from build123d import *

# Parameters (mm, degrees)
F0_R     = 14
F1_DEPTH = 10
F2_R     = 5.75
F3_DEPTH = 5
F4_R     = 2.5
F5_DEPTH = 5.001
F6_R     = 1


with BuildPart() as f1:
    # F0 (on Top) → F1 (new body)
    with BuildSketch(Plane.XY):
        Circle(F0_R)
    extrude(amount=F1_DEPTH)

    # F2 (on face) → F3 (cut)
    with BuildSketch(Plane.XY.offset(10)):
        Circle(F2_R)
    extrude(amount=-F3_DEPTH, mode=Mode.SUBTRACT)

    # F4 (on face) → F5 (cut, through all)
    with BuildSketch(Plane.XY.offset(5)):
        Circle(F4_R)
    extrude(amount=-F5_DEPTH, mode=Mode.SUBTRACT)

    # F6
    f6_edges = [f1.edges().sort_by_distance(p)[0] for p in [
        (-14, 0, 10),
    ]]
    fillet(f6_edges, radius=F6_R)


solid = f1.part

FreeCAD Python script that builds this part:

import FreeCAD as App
import Part
import Sketcher
from FreeCAD import Vector


def edges_at(feature, points):
    """Names of the edges that pass closest to the given points."""
    edges = feature.Shape.Edges
    near = lambda p: min(range(len(edges)), key=lambda i: edges[i].distToShape(Part.Vertex(*p))[0])
    return sorted({f"Edge{near(p) + 1}" for p in points})

doc = App.newDocument("Part")
body = doc.addObject("PartDesign::Body", "Body")

# Sketch on XY plane
sketch1 = doc.addObject("Sketcher::SketchObject", "Sketch")
body.addObject(sketch1)
sketch1.AttachmentSupport = (doc.XY_Plane, [""])
sketch1.MapMode = "FlatFace"
sketch1.addGeometry(Part.Circle(Vector(0, 0, 0), Vector(0, 0, 1), 14), False)
sketch1.addConstraint([
    Sketcher.Constraint("Coincident", 0, 3, -1, 1),
    Sketcher.Constraint("Diameter", 0, 28.0),
])
pad1 = doc.addObject("PartDesign::Pad", "Pad")
body.addObject(pad1)
pad1.Profile = sketch1
pad1.Length = 10

# Sketch on XY plane
sketch2 = doc.addObject("Sketcher::SketchObject", "Sketch001")
body.addObject(sketch2)
sketch2.AttachmentSupport = (doc.XY_Plane, [""])
sketch2.MapMode = "FlatFace"
sketch2.AttachmentOffset = App.Placement(Vector(0, 0, 10), App.Rotation())
sketch2.addGeometry(Part.Circle(Vector(0, 0, 0), Vector(0, 0, 1), 6), False)
sketch2.addConstraint([
    Sketcher.Constraint("Coincident", 0, 3, -1, 1),
    Sketcher.Constraint("Diameter", 0, 11.5),
])
pocket1 = doc.addObject("PartDesign::Pocket", "Pocket")
body.addObject(pocket1)
pocket1.Profile = sketch2
pocket1.Length = 5

# Sketch on XY plane
sketch3 = doc.addObject("Sketcher::SketchObject", "Sketch002")
body.addObject(sketch3)
sketch3.AttachmentSupport = (doc.XY_Plane, [""])
sketch3.MapMode = "FlatFace"
sketch3.AttachmentOffset = App.Placement(Vector(0, 0, 5), App.Rotation())
sketch3.addGeometry(Part.Circle(Vector(0, 0, 0), Vector(0, 0, 1), 2.5), False)
sketch3.addConstraint([
    Sketcher.Constraint("Coincident", 0, 3, -1, 1),
    Sketcher.Constraint("Diameter", 0, 5.0),
])
pocket2 = doc.addObject("PartDesign::Pocket", "Pocket001")
body.addObject(pocket2)
pocket2.Profile = sketch3
pocket2.Type = "ThroughAll"
doc.recompute()

fillet = doc.addObject("PartDesign::Fillet", "Fillet")
body.addObject(fillet)
fillet.Base = (pocket2, edges_at(pocket2, [(-14, 0, 10)]))
fillet.Radius = 1

doc.recompute()
